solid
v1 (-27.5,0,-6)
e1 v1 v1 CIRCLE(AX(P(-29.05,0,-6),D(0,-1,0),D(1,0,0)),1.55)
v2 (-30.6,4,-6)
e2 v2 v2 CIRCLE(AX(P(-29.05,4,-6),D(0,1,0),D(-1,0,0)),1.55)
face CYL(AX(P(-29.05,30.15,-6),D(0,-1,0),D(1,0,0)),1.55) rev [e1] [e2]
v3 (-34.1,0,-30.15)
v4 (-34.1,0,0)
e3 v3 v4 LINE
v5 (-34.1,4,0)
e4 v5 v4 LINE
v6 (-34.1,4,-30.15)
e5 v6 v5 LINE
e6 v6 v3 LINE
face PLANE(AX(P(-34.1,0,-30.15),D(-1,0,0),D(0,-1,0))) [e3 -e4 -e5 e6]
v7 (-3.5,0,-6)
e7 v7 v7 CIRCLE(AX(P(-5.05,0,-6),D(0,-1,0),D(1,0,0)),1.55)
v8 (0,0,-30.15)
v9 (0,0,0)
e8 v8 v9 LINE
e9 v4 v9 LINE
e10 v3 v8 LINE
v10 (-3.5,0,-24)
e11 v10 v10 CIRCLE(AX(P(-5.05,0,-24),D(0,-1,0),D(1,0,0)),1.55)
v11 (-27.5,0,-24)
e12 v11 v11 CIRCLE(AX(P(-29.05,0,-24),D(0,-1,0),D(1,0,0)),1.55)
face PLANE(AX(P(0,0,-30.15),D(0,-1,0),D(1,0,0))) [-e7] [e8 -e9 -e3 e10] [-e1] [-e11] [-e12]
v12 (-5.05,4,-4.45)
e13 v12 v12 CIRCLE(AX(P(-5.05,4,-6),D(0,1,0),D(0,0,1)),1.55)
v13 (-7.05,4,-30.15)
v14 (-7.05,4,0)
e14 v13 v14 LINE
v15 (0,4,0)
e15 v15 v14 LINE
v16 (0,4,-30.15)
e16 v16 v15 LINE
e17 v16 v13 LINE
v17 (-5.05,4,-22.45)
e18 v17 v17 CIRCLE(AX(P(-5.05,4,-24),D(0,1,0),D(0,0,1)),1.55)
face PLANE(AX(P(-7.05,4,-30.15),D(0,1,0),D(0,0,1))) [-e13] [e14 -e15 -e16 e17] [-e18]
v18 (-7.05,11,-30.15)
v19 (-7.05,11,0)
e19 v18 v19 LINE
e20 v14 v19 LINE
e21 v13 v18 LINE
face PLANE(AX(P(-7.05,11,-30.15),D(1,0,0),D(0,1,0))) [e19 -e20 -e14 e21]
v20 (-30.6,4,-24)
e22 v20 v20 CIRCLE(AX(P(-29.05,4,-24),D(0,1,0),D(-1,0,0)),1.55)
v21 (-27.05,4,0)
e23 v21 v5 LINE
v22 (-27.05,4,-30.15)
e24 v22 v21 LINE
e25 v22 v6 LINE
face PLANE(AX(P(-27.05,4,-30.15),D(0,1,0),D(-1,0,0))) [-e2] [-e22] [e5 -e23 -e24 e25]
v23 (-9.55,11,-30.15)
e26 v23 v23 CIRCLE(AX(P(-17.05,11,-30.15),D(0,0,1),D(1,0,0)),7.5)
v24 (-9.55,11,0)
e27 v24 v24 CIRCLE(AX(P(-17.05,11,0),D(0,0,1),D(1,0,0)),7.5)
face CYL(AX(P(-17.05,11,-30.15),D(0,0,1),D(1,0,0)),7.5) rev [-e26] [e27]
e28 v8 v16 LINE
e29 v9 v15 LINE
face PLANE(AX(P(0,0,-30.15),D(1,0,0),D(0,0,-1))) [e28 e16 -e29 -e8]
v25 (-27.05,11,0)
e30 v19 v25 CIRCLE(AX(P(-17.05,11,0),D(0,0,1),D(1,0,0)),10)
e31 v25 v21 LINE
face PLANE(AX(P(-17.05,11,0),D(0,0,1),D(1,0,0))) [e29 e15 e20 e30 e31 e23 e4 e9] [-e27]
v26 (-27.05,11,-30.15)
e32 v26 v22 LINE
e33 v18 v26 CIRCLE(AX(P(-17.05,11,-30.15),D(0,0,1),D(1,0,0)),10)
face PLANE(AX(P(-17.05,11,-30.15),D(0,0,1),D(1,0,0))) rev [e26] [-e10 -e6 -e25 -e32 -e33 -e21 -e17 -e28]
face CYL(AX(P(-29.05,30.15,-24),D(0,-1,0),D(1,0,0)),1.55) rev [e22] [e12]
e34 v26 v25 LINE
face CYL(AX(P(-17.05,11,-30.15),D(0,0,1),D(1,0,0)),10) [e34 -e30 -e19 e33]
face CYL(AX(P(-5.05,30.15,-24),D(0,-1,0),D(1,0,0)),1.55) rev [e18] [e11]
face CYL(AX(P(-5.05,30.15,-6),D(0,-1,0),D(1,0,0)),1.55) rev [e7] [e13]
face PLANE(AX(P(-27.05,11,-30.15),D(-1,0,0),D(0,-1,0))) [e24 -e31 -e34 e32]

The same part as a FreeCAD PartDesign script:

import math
import FreeCAD as App
import Part
import Sketcher
Q = App.Units.Quantity

doc = App.newDocument("Part")
body = doc.addObject("PartDesign::Body", "Body")

# Sketch on XY plane
sketch1 = body.newObject("Sketcher::SketchObject", "Sketch")
sketch1.AttachmentSupport = (doc.getObject("XY_Plane"), [""])
sketch1.MapMode = "FlatFace"
sketch1.addGeometry([
    Part.LineSegment(App.Vector(-34.1, 0, 0), App.Vector(0, 0, 0)),  # 0
    Part.LineSegment(App.Vector(0, 0, 0), App.Vector(0, 4, 0)),  # 1
    Part.LineSegment(App.Vector(0, 4, 0), App.Vector(-7, 4, 0)),  # 2
    Part.LineSegment(App.Vector(-7, 4, 0), App.Vector(-7, 11, 0)),  # 3
    Part.ArcOfCircle(Part.Circle(App.Vector(-17.1, 11, 0), App.Vector(0, 0, 1), 10), math.radians(0), math.radians(180)),  # 4
    Part.LineSegment(App.Vector(-27.1, 11, 0), App.Vector(-27.1, 4, 0)),  # 5
    Part.LineSegment(App.Vector(-27.1, 4, 0), App.Vector(-34.1, 4, 0)),  # 6
    Part.LineSegment(App.Vector(-34.1, 4, 0), App.Vector(-34.1, 0, 0)),  # 7
    Part.Circle(App.Vector(-17.1, 11, 0), App.Vector(0, 0, 1), 7.5),  # 8
], False)
sketch1.addConstraint([
    Sketcher.Constraint("Coincident", 0, 2, 1, 1),
    Sketcher.Constraint("Coincident", 1, 2, 2, 1),
    Sketcher.Constraint("Coincident", 2, 2, 3, 1),
    Sketcher.Constraint("Tangent", 3, 2, 4, 1),
    Sketcher.Constraint("Tangent", 4, 2, 5, 1),
    Sketcher.Constraint("Coincident", 5, 2, 6, 1),
    Sketcher.Constraint("Coincident", 6, 2, 7, 1),
    Sketcher.Constraint("Coincident", 7, 2, 0, 1),
    Sketcher.Constraint("Horizontal", 0),
    Sketcher.Constraint("Vertical", 1),
    Sketcher.Constraint("Horizontal", 2),
    Sketcher.Constraint("Vertical", 3),
    Sketcher.Constraint("Vertical", 5),
    Sketcher.Constraint("Horizontal", 6),
    Sketcher.Constraint("Vertical", 7),
    Sketcher.Constraint("Coincident", 0, 2, -1, 1),
    Sketcher.Constraint("Coincident", 8, 3, 4, 3),
    Sketcher.Constraint("Horizontal", 2, 2, 5, 2),
    Sketcher.Constraint("Equal", 2, 6),
    Sketcher.Constraint("Diameter", 8, Q("15 mm")),
    Sketcher.Constraint("Radius", 4, Q("10 mm")),
    Sketcher.Constraint("DistanceY", 1, 1, 1, 2, Q("4 mm")),
    Sketcher.Constraint("DistanceY", 3, 1, 3, 2, Q("7 mm")),
    Sketcher.Constraint("DistanceX", 0, 1, 0, 2, Q("34.1 mm")),
])
pad1 = body.newObject("PartDesign::Pad", "Pad")
pad1.Profile = sketch1
pad1.Length = 30.15
pad1.Reversed = True

# Sketch on XZ plane
sketch2 = body.newObject("Sketcher::SketchObject", "Sketch001")
sketch2.AttachmentSupport = (doc.getObject("XZ_Plane"), [""])
sketch2.MapMode = "FlatFace"
sketch2.addGeometry([
    Part.Circle(App.Vector(-29.1, -6, 0), App.Vector(0, 0, 1), 1.6),
    Part.Circle(App.Vector(-29.1, -24, 0), App.Vector(0, 0, 1), 1.6),
    Part.Circle(App.Vector(-5, -6, 0), App.Vector(0, 0, 1), 1.6),
    Part.Circle(App.Vector(-5, -24, 0), App.Vector(0, 0, 1), 1.6),
], False)
sketch2.addConstraint([
    Sketcher.Constraint("Equal", 0, 1),
    Sketcher.Constraint("Equal", 1, 2),
    Sketcher.Constraint("Equal", 2, 3),
    Sketcher.Constraint("Horizontal", 0, 3, 2, 3),
    Sketcher.Constraint("Horizontal", 1, 3, 3, 3),
    Sketcher.Constraint("Vertical", 0, 3, 1, 3),
    Sketcher.Constraint("Vertical", 2, 3, 3, 3),
    Sketcher.Constraint("Diameter", 0, Q("3.1 mm")),
    Sketcher.Constraint("DistanceY", 0, 3, -1, 1, Q("6 mm")),
    Sketcher.Constraint("DistanceY", 1, 3, -1, 1, Q("24 mm")),
    Sketcher.Constraint("DistanceX", 0, 3, 2, 3, Q("24 mm")),
    Sketcher.Constraint("DistanceX", 0, 3, -1, 1, Q("29.05 mm")),
])
pocket1 = body.newObject("PartDesign::Pocket", "Pocket")
pocket1.Profile = sketch2
pocket1.Length = 30.15

doc.recompute()
